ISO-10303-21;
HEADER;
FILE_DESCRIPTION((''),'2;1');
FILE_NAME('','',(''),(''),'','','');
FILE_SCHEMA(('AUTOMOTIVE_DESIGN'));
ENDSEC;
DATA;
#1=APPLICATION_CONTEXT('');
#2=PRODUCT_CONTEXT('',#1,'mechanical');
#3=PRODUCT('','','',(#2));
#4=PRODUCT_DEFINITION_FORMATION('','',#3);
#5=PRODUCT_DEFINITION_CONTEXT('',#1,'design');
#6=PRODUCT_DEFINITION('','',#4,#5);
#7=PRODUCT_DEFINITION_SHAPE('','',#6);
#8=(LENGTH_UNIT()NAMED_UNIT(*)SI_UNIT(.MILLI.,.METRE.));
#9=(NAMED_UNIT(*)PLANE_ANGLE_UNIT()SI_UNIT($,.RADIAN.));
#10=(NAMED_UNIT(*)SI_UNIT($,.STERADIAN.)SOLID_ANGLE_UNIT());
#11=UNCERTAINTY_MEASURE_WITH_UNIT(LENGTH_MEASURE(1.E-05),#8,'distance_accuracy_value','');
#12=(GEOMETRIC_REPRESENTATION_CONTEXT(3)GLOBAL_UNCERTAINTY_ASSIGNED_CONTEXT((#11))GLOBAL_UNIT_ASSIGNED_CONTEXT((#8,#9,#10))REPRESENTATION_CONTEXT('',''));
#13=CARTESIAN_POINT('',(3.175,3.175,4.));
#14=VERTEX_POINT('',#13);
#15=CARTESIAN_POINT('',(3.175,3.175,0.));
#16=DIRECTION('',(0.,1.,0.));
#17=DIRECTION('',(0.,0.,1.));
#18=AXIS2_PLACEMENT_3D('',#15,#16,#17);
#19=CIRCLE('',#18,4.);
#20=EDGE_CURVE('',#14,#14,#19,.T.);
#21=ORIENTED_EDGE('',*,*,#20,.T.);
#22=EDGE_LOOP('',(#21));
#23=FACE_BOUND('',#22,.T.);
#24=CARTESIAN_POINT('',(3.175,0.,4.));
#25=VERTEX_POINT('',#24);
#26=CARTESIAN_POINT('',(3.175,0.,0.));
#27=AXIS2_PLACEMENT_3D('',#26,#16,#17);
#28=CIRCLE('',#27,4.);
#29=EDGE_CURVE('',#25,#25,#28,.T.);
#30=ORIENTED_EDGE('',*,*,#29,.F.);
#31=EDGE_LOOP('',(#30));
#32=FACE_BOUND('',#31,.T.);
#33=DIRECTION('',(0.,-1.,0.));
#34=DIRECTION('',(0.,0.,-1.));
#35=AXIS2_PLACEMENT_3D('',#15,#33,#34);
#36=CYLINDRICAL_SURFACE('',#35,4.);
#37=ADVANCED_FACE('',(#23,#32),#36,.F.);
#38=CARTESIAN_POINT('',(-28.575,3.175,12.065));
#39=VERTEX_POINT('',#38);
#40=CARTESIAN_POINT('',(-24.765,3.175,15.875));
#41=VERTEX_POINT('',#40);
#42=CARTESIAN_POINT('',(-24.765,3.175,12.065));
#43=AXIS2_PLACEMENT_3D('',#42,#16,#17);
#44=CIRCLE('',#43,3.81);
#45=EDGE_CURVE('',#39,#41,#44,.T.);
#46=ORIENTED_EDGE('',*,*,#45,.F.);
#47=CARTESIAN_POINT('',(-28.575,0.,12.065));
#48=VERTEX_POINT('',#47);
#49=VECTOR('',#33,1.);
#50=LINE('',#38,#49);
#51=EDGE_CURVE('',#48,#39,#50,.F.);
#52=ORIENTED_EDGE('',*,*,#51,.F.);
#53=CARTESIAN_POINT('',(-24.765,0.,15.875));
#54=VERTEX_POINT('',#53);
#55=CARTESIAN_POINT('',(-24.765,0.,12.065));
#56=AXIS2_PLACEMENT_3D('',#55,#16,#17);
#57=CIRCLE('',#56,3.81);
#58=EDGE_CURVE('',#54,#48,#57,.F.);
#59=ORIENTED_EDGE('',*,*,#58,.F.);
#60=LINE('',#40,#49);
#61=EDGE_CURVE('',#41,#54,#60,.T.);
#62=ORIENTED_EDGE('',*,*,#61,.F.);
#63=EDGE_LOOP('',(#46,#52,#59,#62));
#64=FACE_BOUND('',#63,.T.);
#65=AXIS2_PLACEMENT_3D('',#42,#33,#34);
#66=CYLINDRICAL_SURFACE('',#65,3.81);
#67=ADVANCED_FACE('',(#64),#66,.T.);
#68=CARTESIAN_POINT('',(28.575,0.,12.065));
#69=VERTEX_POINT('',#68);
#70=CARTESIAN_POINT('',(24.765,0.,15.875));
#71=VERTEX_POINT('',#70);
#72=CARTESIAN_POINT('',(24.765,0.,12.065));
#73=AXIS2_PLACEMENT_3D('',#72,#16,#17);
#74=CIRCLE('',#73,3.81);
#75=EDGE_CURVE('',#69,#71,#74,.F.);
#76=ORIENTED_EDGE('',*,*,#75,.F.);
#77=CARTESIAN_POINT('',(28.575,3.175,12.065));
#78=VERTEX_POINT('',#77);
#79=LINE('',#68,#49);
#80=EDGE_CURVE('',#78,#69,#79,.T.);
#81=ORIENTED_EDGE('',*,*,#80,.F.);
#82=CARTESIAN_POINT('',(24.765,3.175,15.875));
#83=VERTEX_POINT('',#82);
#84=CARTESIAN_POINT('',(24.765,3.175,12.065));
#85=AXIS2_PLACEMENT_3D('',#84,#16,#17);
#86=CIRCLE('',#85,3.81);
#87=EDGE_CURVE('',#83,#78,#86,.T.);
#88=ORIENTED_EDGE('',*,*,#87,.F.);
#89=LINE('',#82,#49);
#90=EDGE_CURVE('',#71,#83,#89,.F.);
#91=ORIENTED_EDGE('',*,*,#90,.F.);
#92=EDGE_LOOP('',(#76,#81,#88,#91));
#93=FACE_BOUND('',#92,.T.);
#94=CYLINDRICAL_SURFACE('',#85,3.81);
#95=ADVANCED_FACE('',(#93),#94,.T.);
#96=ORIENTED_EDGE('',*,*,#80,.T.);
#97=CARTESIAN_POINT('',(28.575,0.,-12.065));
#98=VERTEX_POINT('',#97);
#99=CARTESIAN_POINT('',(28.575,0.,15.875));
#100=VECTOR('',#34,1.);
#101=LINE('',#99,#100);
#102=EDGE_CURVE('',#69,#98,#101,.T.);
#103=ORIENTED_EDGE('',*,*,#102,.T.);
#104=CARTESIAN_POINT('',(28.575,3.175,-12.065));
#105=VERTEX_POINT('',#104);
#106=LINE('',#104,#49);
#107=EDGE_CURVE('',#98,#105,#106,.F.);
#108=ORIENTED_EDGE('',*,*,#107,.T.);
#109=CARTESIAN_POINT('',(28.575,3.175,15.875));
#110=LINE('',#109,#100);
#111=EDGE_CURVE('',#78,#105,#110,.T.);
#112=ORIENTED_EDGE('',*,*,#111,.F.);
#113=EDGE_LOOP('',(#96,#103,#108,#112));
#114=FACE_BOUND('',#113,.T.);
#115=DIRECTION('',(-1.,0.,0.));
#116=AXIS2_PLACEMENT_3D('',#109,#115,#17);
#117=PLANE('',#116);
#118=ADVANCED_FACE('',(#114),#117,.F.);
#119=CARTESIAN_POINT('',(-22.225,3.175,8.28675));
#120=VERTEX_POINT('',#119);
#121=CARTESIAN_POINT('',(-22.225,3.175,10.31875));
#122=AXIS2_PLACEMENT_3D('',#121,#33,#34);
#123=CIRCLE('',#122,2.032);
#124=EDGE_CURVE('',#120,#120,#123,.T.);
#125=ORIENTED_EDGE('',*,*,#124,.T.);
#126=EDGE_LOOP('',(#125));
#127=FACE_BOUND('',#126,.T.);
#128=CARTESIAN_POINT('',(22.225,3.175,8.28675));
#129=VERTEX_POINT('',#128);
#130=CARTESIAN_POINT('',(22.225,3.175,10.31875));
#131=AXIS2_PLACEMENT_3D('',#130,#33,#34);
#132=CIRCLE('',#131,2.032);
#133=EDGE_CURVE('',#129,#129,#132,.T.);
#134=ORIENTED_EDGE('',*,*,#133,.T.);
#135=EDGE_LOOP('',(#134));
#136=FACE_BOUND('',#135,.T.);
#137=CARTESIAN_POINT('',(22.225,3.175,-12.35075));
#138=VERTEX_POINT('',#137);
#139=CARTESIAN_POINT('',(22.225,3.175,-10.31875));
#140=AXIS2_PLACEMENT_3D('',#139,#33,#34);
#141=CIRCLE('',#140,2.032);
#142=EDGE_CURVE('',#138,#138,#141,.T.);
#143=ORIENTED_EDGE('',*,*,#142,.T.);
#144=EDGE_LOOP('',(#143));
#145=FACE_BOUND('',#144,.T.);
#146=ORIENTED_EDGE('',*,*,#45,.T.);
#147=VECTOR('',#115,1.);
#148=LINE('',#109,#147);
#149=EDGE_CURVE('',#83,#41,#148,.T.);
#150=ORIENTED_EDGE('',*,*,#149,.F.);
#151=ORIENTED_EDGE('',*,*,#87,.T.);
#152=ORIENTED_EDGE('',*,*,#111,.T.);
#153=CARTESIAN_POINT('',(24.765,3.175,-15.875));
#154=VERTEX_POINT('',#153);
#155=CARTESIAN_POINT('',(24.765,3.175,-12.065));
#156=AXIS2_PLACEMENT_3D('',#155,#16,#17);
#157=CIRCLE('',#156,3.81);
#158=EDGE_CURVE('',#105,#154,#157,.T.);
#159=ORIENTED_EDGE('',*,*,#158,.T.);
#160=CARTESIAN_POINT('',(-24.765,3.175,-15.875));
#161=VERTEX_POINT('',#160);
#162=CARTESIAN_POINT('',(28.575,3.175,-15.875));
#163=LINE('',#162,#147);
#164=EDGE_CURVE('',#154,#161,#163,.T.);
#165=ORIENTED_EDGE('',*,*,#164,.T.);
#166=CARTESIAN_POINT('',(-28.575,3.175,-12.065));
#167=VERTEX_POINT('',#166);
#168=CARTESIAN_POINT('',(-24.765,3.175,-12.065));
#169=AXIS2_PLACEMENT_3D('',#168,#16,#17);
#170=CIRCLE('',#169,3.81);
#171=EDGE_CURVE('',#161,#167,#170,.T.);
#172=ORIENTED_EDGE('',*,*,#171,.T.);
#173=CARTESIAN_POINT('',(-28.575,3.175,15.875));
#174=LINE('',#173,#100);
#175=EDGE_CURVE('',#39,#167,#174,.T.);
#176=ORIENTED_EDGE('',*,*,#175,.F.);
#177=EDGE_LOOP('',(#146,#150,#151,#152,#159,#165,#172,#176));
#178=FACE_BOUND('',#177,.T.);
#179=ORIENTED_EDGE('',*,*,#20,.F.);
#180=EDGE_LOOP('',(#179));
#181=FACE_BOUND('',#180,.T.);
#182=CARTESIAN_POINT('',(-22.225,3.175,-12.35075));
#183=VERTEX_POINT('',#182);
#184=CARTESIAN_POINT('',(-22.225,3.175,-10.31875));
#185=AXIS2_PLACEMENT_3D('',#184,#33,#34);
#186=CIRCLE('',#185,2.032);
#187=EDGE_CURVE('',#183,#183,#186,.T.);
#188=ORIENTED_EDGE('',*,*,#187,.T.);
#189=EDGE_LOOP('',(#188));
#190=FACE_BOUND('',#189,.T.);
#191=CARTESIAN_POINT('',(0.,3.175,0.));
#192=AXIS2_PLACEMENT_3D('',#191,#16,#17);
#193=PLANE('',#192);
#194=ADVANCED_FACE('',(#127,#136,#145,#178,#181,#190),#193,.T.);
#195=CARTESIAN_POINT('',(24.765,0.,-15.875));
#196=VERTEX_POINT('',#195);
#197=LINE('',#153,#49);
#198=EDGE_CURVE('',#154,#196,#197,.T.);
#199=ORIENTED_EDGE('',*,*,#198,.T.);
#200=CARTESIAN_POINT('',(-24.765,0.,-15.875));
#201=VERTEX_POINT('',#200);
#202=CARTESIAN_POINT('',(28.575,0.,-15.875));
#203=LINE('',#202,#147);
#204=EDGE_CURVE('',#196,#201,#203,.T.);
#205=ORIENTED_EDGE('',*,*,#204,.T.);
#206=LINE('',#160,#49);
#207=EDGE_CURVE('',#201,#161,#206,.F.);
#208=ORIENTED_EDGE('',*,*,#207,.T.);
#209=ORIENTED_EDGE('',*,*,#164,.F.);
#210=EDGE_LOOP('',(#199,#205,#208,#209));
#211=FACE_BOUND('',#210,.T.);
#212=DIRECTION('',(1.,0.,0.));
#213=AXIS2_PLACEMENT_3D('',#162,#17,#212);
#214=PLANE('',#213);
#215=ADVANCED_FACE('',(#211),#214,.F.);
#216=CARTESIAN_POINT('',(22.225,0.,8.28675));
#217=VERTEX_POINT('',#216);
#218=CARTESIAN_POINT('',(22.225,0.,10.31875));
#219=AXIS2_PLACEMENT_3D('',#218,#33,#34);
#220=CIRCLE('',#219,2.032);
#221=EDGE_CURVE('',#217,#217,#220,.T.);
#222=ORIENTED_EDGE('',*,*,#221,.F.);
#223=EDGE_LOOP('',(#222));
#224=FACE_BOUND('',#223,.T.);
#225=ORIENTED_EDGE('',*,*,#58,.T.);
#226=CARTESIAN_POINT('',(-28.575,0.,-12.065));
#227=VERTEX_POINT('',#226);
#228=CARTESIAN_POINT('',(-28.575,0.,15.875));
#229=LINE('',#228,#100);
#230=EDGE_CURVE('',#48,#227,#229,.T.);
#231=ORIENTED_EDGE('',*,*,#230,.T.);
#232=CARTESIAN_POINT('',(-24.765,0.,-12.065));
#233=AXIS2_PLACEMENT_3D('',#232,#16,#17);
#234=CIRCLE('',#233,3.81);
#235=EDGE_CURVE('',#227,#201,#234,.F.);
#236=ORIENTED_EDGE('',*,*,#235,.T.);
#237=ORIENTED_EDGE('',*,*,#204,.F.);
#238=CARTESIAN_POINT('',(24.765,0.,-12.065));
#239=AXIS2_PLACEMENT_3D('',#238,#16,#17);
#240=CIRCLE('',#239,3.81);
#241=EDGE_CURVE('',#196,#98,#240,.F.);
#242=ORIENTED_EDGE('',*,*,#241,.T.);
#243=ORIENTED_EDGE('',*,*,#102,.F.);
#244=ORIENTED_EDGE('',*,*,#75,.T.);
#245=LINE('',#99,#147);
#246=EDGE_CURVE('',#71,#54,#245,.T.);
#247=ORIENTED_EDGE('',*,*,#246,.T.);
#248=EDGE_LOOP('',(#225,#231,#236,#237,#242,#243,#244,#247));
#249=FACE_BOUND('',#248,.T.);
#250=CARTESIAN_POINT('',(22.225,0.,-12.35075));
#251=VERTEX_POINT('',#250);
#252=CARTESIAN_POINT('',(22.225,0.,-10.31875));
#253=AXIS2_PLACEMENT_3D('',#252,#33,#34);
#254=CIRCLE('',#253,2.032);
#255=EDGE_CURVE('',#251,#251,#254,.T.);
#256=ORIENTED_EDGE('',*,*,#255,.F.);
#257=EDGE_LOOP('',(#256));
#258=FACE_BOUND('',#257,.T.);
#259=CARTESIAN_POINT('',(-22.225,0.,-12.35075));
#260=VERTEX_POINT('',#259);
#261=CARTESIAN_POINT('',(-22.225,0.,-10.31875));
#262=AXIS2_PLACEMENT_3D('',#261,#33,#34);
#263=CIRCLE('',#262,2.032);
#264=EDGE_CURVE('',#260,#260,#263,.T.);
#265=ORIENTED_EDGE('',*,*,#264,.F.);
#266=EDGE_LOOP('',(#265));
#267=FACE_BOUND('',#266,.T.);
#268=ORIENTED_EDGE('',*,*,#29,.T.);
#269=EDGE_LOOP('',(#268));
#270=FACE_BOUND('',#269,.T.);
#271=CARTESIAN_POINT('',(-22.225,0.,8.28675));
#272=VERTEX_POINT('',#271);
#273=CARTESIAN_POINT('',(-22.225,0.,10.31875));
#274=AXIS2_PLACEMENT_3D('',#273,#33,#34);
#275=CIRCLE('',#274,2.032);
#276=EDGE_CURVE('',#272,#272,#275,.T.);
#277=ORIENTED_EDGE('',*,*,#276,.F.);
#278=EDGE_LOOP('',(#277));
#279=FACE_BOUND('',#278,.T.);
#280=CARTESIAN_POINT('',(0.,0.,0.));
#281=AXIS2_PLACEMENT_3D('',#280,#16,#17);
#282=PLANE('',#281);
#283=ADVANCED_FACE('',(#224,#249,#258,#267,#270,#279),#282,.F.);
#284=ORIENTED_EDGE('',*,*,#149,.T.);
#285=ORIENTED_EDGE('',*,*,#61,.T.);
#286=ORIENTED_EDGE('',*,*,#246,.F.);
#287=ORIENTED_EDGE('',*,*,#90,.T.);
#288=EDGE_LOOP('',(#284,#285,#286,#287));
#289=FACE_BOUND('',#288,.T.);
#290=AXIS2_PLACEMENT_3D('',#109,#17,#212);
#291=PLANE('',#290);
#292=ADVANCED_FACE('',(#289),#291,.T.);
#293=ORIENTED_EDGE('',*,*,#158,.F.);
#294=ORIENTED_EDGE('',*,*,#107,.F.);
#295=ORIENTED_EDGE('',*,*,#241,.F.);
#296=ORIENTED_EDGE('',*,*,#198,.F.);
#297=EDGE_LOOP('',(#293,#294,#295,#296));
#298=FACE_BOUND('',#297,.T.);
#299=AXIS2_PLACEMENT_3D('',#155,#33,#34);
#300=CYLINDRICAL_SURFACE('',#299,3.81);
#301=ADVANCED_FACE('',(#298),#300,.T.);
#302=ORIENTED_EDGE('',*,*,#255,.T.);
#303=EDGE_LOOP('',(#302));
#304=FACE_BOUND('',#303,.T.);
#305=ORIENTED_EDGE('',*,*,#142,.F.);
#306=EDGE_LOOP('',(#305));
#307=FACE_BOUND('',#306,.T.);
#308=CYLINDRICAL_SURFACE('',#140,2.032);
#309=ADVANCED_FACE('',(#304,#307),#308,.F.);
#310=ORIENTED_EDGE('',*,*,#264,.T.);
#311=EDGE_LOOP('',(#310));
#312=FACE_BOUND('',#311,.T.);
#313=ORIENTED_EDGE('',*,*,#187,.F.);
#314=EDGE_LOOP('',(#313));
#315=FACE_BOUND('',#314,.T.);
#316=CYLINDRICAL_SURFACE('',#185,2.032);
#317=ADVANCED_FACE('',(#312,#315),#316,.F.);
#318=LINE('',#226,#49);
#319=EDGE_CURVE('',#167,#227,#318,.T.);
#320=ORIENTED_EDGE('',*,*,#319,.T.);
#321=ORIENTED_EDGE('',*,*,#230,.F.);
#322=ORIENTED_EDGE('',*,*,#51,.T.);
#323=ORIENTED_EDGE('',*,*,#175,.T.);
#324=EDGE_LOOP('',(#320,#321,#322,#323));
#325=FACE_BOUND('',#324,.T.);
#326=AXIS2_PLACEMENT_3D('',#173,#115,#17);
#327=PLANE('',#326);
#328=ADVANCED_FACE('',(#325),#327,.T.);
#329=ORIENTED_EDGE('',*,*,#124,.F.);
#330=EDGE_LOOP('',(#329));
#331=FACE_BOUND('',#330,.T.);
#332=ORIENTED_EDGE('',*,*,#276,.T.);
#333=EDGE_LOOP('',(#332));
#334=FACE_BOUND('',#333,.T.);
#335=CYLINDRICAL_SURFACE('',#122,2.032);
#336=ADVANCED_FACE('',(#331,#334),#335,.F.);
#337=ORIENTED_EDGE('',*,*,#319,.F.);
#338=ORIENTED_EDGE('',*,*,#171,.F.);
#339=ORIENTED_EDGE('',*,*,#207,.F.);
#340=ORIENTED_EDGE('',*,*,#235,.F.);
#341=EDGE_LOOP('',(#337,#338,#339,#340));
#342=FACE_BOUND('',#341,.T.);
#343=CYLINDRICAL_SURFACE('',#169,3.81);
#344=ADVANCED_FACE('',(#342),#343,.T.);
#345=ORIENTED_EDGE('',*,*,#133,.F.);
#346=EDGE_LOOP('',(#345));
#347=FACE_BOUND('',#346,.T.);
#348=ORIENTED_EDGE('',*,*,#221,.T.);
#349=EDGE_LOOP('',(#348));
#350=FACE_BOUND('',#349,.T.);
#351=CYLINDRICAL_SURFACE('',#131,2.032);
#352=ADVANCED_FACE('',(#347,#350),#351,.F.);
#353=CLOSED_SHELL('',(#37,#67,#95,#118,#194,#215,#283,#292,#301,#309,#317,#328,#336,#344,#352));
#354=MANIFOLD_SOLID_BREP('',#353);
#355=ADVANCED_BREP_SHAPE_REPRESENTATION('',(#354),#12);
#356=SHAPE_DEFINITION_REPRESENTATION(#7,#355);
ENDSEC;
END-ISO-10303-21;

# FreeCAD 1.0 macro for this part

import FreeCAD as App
import Part
import Sketcher
from FreeCAD import Vector
Q = App.Units.Quantity


def edges_at(feature, points):
    """Names of the edges that pass closest to the given points."""
    edges = feature.Shape.Edges
    near = lambda p: min(range(len(edges)), key=lambda i: edges[i].distToShape(Part.Vertex(*p))[0])
    return sorted({f"Edge{near(p) + 1}" for p in points})

doc = App.newDocument("Part")
body = doc.addObject("PartDesign::Body", "Body")

# Sketch on XZ plane
sketch1 = body.newObject("Sketcher::SketchObject", "Sketch")
sketch1.AttachmentSupport = (doc.getObject("XZ_Plane"), [""])
sketch1.MapMode = "FlatFace"
sketch1.addGeometry(Part.LineSegment(Vector(-28.6, -15.9, 0), Vector(-28.6, 15.9, 0)), False)
sketch1.addGeometry(Part.LineSegment(Vector(-28.6, 15.9, 0), Vector(28.6, 15.9, 0)), False)
sketch1.addGeometry(Part.LineSegment(Vector(28.6, 15.9, 0), Vector(28.6, -15.9, 0)), False)
sketch1.addGeometry(Part.LineSegment(Vector(28.6, -15.9, 0), Vector(-28.6, -15.9, 0)), False)
sketch1.addGeometry(Part.Circle(Vector(3.2, 0, 0), Vector(0, 0, 1), 4), False)
sketch1.addConstraint(Sketcher.Constraint("Coincident", 0, 2, 1, 1))
sketch1.addConstraint(Sketcher.Constraint("Coincident", 1, 2, 2, 1))
sketch1.addConstraint(Sketcher.Constraint("Coincident", 2, 2, 3, 1))
sketch1.addConstraint(Sketcher.Constraint("Coincident", 3, 2, 0, 1))
sketch1.addConstraint(Sketcher.Constraint("Vertical", 0))
sketch1.addConstraint(Sketcher.Constraint("Horizontal", 1))
sketch1.addConstraint(Sketcher.Constraint("Vertical", 2))
sketch1.addConstraint(Sketcher.Constraint("Horizontal", 3))
sketch1.addConstraint(Sketcher.Constraint("Symmetric", 0, 2, 2, 2, -1, 1))
sketch1.addConstraint(Sketcher.Constraint("PointOnObject", 4, 3, -1))
sketch1.addConstraint(Sketcher.Constraint("DistanceX", 4, 3, 1, 2, Q("1 in")))
sketch1.addConstraint(Sketcher.Constraint("DistanceX", 1, 1, 1, 2, Q("2.25 in")))
sketch1.addConstraint(Sketcher.Constraint("DistanceY", 0, 1, 0, 2, Q("1.25 in")))
sketch1.addConstraint(Sketcher.Constraint("Diameter", 4, Q("8 mm")))
pad1 = body.newObject("PartDesign::Pad", "Pad")
pad1.Profile = sketch1
pad1.Length = Q("0.125 in")
pad1.Reversed = True
doc.recompute()

fillet = body.newObject("PartDesign::Fillet", "Fillet")
fillet.Base = (pad1, edges_at(pad1, [
    (28.575, 1.587, 15.875),
    (-28.575, 1.587, 15.875),
    (-28.575, 1.587, -15.875),
    (28.575, 1.587, -15.875),
]))
fillet.Radius = Q("0.15 in")

# Sketch on XZ plane
sketch2 = body.newObject("Sketcher::SketchObject", "Sketch001")
sketch2.AttachmentSupport = (doc.getObject("XZ_Plane"), [""])
sketch2.MapMode = "FlatFace"
sketch2.addGeometry(Part.Circle(Vector(22.2, -10.3, 0), Vector(0, 0, 1), 2), False)
sketch2.addGeometry(Part.Circle(Vector(22.2, 10.3, 0), Vector(0, 0, 1), 2), False)
sketch2.addGeometry(Part.Circle(Vector(-22.2, -10.3, 0), Vector(0, 0, 1), 2), False)
sketch2.addGeometry(Part.Circle(Vector(-22.2, 10.3, 0), Vector(0, 0, 1), 2), False)
sketch2.addConstraint(Sketcher.Constraint("Equal", 0, 1))
sketch2.addConstraint(Sketcher.Constraint("Equal", 1, 2))
sketch2.addConstraint(Sketcher.Constraint("Equal", 2, 3))
sketch2.addConstraint(Sketcher.Constraint("Symmetric", 1, 3, 2, 3, -1, 1))
sketch2.addConstraint(Sketcher.Constraint("Symmetric", 0, 3, 3, 3, -1, 1))
sketch2.addConstraint(Sketcher.Constraint("Symmetric", 0, 3, 2, 3, -2))
sketch2.addConstraint(Sketcher.Constraint("Diameter", 0, Q("0.16 in")))
sketch2.addConstraint(Sketcher.Constraint("DistanceX", 2, 3, 0, 3, Q("1.75 in")))
sketch2.addConstraint(Sketcher.Constraint("DistanceY", 0, 3, -1, 1, Q("0.40625 in")))
pocket1 = body.newObject("PartDesign::Pocket", "Pocket")
pocket1.Profile = sketch2
pocket1.Type = "ThroughAll"

doc.recompute()
